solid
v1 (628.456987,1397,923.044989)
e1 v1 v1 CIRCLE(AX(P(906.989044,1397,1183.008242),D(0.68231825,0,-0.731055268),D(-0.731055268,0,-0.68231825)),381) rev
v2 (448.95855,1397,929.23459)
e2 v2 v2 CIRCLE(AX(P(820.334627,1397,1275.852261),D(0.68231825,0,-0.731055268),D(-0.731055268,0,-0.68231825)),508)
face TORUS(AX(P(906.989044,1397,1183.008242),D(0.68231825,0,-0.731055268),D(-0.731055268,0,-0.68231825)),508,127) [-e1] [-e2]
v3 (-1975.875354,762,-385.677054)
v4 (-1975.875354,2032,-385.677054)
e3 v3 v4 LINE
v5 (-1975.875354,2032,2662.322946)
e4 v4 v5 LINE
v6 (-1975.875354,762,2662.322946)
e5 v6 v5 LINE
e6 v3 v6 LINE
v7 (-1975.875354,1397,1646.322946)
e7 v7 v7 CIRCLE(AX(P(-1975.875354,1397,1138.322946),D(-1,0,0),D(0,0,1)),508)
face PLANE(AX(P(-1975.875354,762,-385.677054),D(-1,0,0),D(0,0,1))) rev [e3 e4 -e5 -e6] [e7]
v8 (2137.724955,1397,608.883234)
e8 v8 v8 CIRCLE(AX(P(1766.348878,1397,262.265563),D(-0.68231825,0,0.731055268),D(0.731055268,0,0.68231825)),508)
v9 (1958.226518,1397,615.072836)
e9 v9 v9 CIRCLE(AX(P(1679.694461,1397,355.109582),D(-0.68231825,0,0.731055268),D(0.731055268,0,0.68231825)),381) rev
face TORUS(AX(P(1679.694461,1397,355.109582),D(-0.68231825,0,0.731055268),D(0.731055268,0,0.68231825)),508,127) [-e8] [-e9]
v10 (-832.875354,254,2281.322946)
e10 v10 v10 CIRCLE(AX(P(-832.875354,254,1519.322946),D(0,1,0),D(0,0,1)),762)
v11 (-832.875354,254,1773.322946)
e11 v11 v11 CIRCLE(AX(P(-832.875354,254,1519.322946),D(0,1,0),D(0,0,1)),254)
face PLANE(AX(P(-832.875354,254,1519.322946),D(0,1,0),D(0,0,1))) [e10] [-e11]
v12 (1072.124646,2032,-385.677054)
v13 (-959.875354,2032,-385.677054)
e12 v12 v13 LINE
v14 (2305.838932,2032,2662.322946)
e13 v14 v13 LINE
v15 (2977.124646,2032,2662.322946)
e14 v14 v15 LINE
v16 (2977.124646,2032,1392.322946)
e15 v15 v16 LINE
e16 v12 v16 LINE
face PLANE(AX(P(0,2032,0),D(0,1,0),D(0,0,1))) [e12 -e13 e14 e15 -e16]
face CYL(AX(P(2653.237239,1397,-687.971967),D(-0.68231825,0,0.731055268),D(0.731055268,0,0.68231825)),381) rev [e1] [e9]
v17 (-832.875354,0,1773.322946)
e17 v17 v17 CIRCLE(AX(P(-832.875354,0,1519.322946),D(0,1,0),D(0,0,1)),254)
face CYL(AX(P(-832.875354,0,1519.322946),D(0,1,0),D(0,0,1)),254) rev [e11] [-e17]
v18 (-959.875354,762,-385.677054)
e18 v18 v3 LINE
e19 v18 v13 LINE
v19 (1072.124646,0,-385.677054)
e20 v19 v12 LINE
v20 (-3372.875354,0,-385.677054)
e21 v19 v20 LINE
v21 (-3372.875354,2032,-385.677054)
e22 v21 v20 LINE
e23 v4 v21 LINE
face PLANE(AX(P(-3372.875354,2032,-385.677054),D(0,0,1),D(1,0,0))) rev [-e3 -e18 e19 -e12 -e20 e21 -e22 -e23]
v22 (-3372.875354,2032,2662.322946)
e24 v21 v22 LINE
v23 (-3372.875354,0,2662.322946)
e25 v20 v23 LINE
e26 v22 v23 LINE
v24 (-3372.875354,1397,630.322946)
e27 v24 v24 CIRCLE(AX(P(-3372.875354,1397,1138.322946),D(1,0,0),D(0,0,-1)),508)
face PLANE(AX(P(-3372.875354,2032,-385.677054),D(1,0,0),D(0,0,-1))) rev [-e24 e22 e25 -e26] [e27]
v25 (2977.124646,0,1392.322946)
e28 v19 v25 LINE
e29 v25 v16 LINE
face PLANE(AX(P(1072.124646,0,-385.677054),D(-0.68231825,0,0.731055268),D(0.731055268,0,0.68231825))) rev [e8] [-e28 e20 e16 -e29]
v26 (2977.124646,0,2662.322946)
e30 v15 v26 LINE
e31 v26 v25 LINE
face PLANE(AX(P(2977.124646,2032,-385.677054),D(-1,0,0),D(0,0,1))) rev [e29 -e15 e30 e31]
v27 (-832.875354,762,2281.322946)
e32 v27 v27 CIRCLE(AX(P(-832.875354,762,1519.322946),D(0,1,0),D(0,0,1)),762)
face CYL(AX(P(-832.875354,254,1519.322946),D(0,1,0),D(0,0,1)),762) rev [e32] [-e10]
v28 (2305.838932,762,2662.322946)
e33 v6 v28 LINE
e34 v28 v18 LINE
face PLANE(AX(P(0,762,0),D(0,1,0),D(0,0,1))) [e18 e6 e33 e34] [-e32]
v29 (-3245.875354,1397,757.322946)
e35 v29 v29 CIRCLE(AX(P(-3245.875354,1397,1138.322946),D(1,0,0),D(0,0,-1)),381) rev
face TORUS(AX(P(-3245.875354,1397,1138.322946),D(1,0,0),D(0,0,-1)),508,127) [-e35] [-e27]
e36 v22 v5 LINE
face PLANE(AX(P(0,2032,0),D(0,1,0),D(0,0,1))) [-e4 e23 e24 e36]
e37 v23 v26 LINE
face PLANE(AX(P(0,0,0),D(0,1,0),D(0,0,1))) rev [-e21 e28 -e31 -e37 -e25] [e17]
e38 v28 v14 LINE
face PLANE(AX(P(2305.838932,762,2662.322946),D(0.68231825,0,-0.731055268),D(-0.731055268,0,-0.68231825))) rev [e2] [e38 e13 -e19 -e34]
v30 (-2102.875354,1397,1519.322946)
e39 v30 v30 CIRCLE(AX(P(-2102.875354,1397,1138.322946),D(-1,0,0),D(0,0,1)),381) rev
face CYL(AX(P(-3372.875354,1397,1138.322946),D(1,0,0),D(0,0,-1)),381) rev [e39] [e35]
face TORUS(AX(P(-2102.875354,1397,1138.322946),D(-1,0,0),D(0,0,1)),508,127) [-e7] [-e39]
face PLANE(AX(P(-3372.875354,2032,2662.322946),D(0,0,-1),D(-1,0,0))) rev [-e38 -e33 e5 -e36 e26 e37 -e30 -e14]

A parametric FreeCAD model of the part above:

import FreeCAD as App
import Part
import Sketcher

V = App.Vector
Q = App.Units.Quantity


def edges_at(feature, points):
    """Names of the edges that pass closest to the given points."""
    edges = feature.Shape.Edges
    near = lambda p: min(range(len(edges)), key=lambda i: edges[i].distToShape(Part.Vertex(*p))[0])
    return sorted({f"Edge{near(p) + 1}" for p in points})

doc = App.newDocument("Part")
body = doc.addObject("PartDesign::Body", "Body")

sketch1 = doc.addObject("Sketcher::SketchObject", "Sketch")
body.addObject(sketch1)
sketch1.AttachmentSupport = (doc.XZ_Plane, [""])
sketch1.MapMode = "FlatFace"
sketch1.addGeometry([
    Part.LineSegment(V(-3373, -386, 0), V(-3373, 2662, 0)),
    Part.LineSegment(V(-3373, 2662, 0), V(2977, 2662, 0)),
    Part.LineSegment(V(2977, 2662, 0), V(2977, -386, 0)),
    Part.LineSegment(V(2977, -386, 0), V(-3373, -386, 0)),
], False)
sketch1.addConstraint([
    Sketcher.Constraint("Coincident", 0, 2, 1, 1),
    Sketcher.Constraint("Coincident", 1, 2, 2, 1),
    Sketcher.Constraint("Coincident", 2, 2, 3, 1),
    Sketcher.Constraint("Coincident", 3, 2, 0, 1),
    Sketcher.Constraint("Vertical", 0),
    Sketcher.Constraint("Horizontal", 1),
    Sketcher.Constraint("Vertical", 2),
    Sketcher.Constraint("Horizontal", 3),
    Sketcher.Constraint("DistanceX", 1, 1, 1, 2, Q("250 in")),
    Sketcher.Constraint("DistanceY", 0, 1, 0, 2, Q("120 in")),
    Sketcher.Constraint("DistanceX", 0, 2, -1, 1, Q("3372.875354 mm")),
    Sketcher.Constraint("DistanceY", -1, 1, 0, 2, Q("2662.322946 mm")),
])
pad1 = doc.addObject("PartDesign::Pad", "Pad")
body.addObject(pad1)
pad1.Profile = sketch1
pad1.Length = Q("80 in")
pad1.Reversed = True

sketch2 = doc.addObject("Sketcher::SketchObject", "Sketch001")
body.addObject(sketch2)
sketch2.AttachmentSupport = (doc.XZ_Plane, [""])
sketch2.MapMode = "FlatFace"
sketch2.AttachmentOffset = App.Placement(V(0, 0, -80 * 25.4), App.Rotation())
sketch2.addGeometry([
    Part.LineSegment(V(1072, -386, 0), V(2977, 1392, 0)),
    Part.LineSegment(V(2977, 1392, 0), V(2977, -386, 0)),
    Part.LineSegment(V(2977, -386, 0), V(1072, -386, 0)),
], False)
sketch2.addConstraint([
    Sketcher.Constraint("Coincident", 0, 2, 1, 1),
    Sketcher.Constraint("Coincident", 1, 2, 2, 1),
    Sketcher.Constraint("Coincident", 2, 2, 0, 1),
    Sketcher.Constraint("Vertical", 1),
    Sketcher.Constraint("Horizontal", 2),
    Sketcher.Constraint("DistanceX", 2, 2, 2, 1, Q("75 in")),
    Sketcher.Constraint("DistanceY", 1, 2, 1, 1, Q("70 in")),
    Sketcher.Constraint("DistanceX", -1, 1, 0, 2, Q("2977.124646 mm")),
    Sketcher.Constraint("DistanceY", -1, 1, 0, 2, Q("1392.322946 mm")),
])
pocket1 = doc.addObject("PartDesign::Pocket", "Pocket")
body.addObject(pocket1)
pocket1.Profile = sketch2
pocket1.Type = "ThroughAll"
pocket1.Reversed = True

sketch3 = doc.addObject("Sketcher::SketchObject", "Sketch002")
body.addObject(sketch3)
sketch3.AttachmentSupport = (doc.XZ_Plane, [""])
sketch3.MapMode = "FlatFace"
sketch3.AttachmentOffset = App.Placement(V(0, 0, -80 * 25.4), App.Rotation())
sketch3.addGeometry([
    Part.LineSegment(V(-1976, -386, 0), V(-1976, 2662, 0)),
    Part.LineSegment(V(-1976, 2662, 0), V(2306, 2662, 0)),
    Part.LineSegment(V(2306, 2662, 0), V(-960, -386, 0)),
    Part.LineSegment(V(-960, -386, 0), V(-1976, -386, 0)),
], False)
sketch3.addConstraint([
    Sketcher.Constraint("Coincident", 0, 2, 1, 1),
    Sketcher.Constraint("Coincident", 1, 2, 2, 1),
    Sketcher.Constraint("Coincident", 2, 2, 3, 1),
    Sketcher.Constraint("Coincident", 3, 2, 0, 1),
    Sketcher.Constraint("Vertical", 0),
    Sketcher.Constraint("Horizontal", 1),
    Sketcher.Constraint("Horizontal", 3),
    Sketcher.Constraint("DistanceX", 3, 2, 3, 1, Q("40 in")),
    Sketcher.Constraint("DistanceY", 0, 1, 0, 2, Q("120 in")),
    Sketcher.Constraint("Distance", 2, Q("4467.12366 mm")),
    Sketcher.Constraint("DistanceX", -1, 1, 1, 2, Q("2305.838932 mm")),
    Sketcher.Constraint("DistanceY", -1, 1, 0, 2, Q("2662.322946 mm")),
])
pocket2 = doc.addObject("PartDesign::Pocket", "Pocket001")
body.addObject(pocket2)
pocket2.Profile = sketch3
pocket2.Length = Q("50 in")
pocket2.Reversed = True

sketch4 = doc.addObject("Sketcher::SketchObject", "Sketch003")
body.addObject(sketch4)
sketch4.AttachmentSupport = (doc.XZ_Plane, [""])
sketch4.MapMode = "FlatFace"
sketch4.AttachmentOffset = App.Placement(V(0, 0, -30 * 25.4), App.Rotation())
sketch4.addGeometry(Part.Circle(V(-833, 1519, 0), V(0, 0, 1), 762), False)
sketch4.addConstraint([
    Sketcher.Constraint("Diameter", 0, Q("60 in")),
    Sketcher.Constraint("DistanceX", 0, 3, -1, 1, Q("832.875354 mm")),
    Sketcher.Constraint("DistanceY", -1, 1, 0, 3, Q("1519.322946 mm")),
])
pocket3 = doc.addObject("PartDesign::Pocket", "Pocket002")
body.addObject(pocket3)
pocket3.Profile = sketch4
pocket3.Length = Q("20 in")
pocket3.Reversed = True

sketch5 = doc.addObject("Sketcher::SketchObject", "Sketch004")
body.addObject(sketch5)
sketch5.AttachmentSupport = (doc.XZ_Plane, [""])
sketch5.MapMode = "FlatFace"
sketch5.AttachmentOffset = App.Placement(V(0, 0, -10 * 25.4), App.Rotation())
sketch5.addGeometry(Part.Circle(V(-833, 1519, 0), V(0, 0, 1), 254), False)
sketch5.addConstraint([
    Sketcher.Constraint("Diameter", 0, Q("20 in")),
    Sketcher.Constraint("DistanceX", 0, 3, -1, 1, Q("832.875354 mm")),
    Sketcher.Constraint("DistanceY", -1, 1, 0, 3, Q("1519.322946 mm")),
])
pocket4 = doc.addObject("PartDesign::Pocket", "Pocket003")
body.addObject(pocket4)
pocket4.Profile = sketch5
pocket4.Type = "ThroughAll"
pocket4.Reversed = True

sketch6 = doc.addObject("Sketcher::SketchObject", "Sketch005")
body.addObject(sketch6)
sketch6.AttachmentSupport = (doc.YZ_Plane, [""])
sketch6.MapMode = "FlatFace"
sketch6.AttachmentOffset = App.Placement(V(0, 0, -1975.875354), App.Rotation())
sketch6.addGeometry(Part.Circle(V(1397, 1138, 0), V(0, 0, 1), 381), False)
sketch6.addConstraint([
    Sketcher.Constraint("Diameter", 0, Q("30 in")),
    Sketcher.Constraint("DistanceX", -1, 1, 0, 3, Q("55 in")),
    Sketcher.Constraint("DistanceY", -1, 1, 0, 3, Q("1138.322946 mm")),
])
pocket5 = doc.addObject("PartDesign::Pocket", "Pocket004")
body.addObject(pocket5)
pocket5.Profile = sketch6
pocket5.Type = "ThroughAll"
doc.recompute()

fillet = doc.addObject("PartDesign::Fillet", "Fillet")
body.addObject(fillet)
fillet.Base = (pocket5, edges_at(pocket5, [(-3372.875, 1397, 1519.323), (-1975.875, 1397, 1519.323)]))
fillet.Radius = Q("5 in")

sketch7 = doc.addObject("Sketcher::SketchObject", "Sketch006")
body.addObject(sketch7)
sketch7.Placement = App.Placement(V(-254.497359, 0, 272.675742), App.Rotation(V(0.731055268, 0, 0.68231825), V(0, 0.999999999, 0), V(-0.68231825, 0, 0.731055268), "ZXY"))
sketch7.addGeometry(Part.Circle(V(1470, 1397, 0), V(0, 0, 1), 381), False)
sketch7.addConstraint([
    Sketcher.Constraint("Diameter", 0, Q("30 in")),
    Sketcher.Constraint("DistanceY", -1, 1, 0, 3, Q("54.9999999 in")),
    Sketcher.Constraint("DistanceX", -1, 1, 0, 3, Q("1470.247232 mm")),
])
pocket6 = doc.addObject("PartDesign::Pocket", "Pocket005")
body.addObject(pocket6)
pocket6.Profile = sketch7
pocket6.Type = "ThroughAll"
doc.recompute()

fillet2 = doc.addObject("PartDesign::Fillet", "Fillet001")
body.addObject(fillet2)
fillet2.Base = (pocket6, edges_at(pocket6, [(1487.817, 1397, 2.302), (541.803, 1397, 1015.889)]))
fillet2.Radius = Q("5 in")

doc.recompute()
